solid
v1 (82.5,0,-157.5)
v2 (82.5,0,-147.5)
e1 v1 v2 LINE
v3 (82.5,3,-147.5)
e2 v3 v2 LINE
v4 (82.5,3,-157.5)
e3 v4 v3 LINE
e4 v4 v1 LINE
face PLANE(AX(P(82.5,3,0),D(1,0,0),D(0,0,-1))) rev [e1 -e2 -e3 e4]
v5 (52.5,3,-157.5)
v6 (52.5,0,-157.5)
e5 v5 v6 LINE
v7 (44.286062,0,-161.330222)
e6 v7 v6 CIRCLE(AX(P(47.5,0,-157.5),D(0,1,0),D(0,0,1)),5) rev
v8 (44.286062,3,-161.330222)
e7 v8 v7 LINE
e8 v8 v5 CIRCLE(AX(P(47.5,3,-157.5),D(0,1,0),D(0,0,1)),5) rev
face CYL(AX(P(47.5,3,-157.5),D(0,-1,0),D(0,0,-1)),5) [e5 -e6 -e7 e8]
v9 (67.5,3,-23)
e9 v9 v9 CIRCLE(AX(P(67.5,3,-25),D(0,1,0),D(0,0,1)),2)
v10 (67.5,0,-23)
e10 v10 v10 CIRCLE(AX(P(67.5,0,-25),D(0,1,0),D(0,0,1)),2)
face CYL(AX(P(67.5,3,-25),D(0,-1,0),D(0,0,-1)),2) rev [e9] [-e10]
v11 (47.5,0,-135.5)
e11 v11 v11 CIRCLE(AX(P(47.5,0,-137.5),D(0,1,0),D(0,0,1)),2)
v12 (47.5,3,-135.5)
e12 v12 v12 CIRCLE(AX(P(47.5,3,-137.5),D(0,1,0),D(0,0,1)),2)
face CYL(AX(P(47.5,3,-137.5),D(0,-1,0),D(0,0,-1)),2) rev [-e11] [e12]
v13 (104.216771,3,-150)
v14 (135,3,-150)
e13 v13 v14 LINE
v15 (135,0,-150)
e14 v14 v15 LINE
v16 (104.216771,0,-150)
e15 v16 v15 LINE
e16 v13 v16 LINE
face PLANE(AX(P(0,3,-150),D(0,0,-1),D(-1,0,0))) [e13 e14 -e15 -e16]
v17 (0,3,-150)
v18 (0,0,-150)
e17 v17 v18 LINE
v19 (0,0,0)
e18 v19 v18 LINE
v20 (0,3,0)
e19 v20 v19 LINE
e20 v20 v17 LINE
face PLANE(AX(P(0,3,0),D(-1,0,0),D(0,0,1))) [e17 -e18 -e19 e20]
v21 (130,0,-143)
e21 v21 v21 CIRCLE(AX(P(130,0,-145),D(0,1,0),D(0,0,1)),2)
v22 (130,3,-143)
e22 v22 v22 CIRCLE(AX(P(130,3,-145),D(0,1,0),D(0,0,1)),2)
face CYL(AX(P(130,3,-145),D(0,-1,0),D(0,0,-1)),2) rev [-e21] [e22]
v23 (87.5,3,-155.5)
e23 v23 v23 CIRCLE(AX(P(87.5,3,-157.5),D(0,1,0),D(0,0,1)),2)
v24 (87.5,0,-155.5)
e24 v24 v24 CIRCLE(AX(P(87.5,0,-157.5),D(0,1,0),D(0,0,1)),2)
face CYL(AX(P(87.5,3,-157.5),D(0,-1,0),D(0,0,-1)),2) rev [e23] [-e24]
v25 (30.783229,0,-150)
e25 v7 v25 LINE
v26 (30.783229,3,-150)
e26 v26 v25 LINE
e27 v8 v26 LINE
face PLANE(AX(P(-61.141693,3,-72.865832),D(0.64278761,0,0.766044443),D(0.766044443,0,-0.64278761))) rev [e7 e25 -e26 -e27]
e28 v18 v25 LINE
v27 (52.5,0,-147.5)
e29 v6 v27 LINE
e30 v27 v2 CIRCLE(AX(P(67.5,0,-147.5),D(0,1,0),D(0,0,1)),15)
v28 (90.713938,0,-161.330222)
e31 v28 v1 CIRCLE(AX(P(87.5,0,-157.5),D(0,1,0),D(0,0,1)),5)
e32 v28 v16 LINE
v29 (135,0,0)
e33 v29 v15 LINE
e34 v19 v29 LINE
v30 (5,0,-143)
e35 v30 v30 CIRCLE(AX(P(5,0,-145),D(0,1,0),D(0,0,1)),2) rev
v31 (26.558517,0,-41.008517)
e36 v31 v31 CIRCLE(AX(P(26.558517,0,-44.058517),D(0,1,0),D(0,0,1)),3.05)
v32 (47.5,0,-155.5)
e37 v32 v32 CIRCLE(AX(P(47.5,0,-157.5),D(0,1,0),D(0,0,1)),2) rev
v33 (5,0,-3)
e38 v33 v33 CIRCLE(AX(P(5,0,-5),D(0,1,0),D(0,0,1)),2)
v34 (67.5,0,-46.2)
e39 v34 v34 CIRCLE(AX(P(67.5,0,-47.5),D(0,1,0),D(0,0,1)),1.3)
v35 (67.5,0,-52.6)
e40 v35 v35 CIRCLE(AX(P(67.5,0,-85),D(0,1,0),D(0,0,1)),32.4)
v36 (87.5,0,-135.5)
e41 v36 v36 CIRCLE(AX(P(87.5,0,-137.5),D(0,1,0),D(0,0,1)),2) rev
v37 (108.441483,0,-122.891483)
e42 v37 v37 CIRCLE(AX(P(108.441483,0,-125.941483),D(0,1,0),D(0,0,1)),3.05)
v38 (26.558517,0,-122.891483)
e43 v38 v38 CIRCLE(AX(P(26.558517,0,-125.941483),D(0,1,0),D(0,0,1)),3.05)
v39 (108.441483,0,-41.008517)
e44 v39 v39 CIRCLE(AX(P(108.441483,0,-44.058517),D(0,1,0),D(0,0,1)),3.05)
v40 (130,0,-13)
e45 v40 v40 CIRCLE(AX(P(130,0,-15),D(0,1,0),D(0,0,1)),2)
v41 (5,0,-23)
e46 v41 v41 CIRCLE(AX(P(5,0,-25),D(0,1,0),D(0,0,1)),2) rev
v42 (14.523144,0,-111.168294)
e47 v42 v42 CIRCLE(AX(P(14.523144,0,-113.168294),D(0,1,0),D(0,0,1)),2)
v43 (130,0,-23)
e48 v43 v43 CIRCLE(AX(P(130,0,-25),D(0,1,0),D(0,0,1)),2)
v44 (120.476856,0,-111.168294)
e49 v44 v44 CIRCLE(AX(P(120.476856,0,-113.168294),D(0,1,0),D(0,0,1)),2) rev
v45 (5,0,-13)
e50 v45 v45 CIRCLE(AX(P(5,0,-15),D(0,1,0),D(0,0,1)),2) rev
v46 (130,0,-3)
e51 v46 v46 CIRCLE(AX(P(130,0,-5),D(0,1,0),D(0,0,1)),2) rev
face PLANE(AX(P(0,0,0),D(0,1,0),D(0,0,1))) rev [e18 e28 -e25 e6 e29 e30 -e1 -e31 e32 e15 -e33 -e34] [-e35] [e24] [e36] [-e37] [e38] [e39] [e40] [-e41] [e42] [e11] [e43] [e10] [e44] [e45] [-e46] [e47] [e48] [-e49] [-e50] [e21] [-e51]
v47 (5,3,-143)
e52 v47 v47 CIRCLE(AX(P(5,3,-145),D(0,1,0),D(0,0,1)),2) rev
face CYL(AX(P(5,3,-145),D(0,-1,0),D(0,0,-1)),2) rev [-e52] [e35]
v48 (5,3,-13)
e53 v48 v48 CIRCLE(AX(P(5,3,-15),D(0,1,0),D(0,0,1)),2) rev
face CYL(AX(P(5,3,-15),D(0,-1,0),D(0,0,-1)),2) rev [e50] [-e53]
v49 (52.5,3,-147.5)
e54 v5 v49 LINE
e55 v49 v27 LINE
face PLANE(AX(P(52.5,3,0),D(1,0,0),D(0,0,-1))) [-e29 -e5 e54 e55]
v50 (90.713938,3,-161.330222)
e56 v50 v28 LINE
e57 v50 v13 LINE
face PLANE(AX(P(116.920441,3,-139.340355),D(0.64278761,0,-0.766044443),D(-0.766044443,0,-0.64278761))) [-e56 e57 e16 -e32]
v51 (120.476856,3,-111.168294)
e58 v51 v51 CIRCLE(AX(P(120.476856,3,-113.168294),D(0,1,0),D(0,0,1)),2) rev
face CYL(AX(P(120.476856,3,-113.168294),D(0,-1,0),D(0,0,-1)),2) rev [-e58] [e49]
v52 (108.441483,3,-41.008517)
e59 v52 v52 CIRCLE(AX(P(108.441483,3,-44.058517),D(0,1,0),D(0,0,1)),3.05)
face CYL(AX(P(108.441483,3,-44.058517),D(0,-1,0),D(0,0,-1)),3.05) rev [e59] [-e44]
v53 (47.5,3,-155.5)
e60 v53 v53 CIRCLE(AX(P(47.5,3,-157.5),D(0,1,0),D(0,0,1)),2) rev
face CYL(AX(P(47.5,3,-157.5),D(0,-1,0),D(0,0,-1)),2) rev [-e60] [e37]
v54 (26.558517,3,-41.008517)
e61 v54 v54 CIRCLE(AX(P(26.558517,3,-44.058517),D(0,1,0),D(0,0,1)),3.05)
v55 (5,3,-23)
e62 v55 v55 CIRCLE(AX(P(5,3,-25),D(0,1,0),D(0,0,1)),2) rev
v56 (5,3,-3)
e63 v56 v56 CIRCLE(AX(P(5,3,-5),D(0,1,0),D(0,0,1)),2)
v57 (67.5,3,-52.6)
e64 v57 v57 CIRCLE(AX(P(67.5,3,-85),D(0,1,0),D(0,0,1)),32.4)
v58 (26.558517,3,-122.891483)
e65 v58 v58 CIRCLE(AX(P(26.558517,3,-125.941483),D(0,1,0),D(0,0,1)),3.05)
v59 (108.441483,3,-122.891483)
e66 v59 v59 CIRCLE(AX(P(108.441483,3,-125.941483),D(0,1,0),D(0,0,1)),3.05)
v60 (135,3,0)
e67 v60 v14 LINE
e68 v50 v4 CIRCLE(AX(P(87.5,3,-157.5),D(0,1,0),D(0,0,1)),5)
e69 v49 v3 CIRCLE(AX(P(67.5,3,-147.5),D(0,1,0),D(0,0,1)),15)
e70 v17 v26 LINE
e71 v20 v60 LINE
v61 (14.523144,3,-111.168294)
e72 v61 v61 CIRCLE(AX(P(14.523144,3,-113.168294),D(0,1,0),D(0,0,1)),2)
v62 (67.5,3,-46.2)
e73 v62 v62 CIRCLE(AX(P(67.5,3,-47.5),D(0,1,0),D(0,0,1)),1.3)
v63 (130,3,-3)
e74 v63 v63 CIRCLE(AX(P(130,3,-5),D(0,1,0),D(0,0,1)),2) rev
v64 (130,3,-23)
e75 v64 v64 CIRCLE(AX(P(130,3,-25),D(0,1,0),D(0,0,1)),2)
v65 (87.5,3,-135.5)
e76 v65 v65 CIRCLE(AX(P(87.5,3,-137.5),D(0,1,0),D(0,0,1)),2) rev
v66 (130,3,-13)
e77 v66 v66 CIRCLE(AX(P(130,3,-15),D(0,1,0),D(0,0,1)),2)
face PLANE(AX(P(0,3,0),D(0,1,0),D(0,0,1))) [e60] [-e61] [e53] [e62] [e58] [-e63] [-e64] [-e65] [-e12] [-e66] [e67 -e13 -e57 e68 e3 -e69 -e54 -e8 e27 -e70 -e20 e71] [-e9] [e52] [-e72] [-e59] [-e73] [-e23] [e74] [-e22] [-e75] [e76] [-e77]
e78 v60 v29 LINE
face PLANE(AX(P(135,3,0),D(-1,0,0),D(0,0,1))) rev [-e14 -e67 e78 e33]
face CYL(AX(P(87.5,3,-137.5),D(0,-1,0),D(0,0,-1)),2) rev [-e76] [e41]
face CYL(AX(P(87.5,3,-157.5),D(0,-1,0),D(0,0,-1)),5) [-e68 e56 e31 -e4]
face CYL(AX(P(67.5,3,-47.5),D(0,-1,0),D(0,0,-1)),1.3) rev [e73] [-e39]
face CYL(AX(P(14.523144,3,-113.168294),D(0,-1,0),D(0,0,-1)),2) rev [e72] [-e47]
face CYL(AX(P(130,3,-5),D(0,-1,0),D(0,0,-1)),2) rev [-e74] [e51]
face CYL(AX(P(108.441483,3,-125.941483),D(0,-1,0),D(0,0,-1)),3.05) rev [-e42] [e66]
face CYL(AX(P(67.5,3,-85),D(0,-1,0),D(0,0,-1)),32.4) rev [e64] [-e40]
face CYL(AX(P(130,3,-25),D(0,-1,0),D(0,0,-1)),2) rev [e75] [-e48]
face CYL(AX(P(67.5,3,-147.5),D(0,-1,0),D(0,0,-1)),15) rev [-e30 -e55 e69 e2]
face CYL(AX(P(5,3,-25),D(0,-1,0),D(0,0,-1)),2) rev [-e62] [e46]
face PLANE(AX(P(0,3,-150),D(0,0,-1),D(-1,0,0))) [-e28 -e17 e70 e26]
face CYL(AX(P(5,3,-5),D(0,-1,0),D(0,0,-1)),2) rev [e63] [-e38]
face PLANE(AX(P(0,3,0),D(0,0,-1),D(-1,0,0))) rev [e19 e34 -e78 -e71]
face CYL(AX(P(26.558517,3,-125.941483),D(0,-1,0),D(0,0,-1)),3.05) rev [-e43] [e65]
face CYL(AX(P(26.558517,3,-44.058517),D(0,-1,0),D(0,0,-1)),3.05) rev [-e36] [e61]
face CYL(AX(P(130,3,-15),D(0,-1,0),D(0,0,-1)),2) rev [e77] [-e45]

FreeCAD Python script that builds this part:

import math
import FreeCAD as App
import Part
import Sketcher

V = App.Vector
Q = App.Units.Quantity

doc = App.newDocument("Part")
body = doc.addObject("PartDesign::Body", "Body")

# Sketch on XZ plane
sketch1 = doc.addObject("Sketcher::SketchObject", "Sketch")
body.addObject(sketch1)
sketch1.AttachmentSupport = (doc.XZ_Plane, [""])
sketch1.MapMode = "FlatFace"
sketch1.addGeometry([
    Part.LineSegment(V(0, -150, 0), V(0, 0, 0)),  # 0
    Part.LineSegment(V(0, 0, 0), V(135, 0, 0)),  # 1
    Part.LineSegment(V(135, 0, 0), V(135, -150, 0)),  # 2
    Part.LineSegment(V(135, -150, 0), V(104.216771, -150, 0)),  # 3
    Part.LineSegment(V(104.216771, -150, 0), V(90.713938, -161.330222, 0)),  # 4
    Part.ArcOfCircle(Part.Circle(V(87.5, -157.5, 0), V(0, 0, 1), 5), math.radians(180), math.radians(310)),  # 5
    Part.LineSegment(V(82.5, -157.5, 0), V(82.5, -147.5, 0)),  # 6
    Part.ArcOfCircle(Part.Circle(V(67.5, -147.5, 0), V(0, 0, 1), 15), math.radians(0), math.radians(180)),  # 7
    Part.LineSegment(V(52.5, -147.5, 0), V(52.5, -157.5, 0)),  # 8
    Part.ArcOfCircle(Part.Circle(V(47.5, -157.5, 0), V(0, 0, 1), 5), math.radians(-130), math.radians(0)),  # 9
    Part.LineSegment(V(44.286062, -161.330222, 0), V(30.783229, -150, 0)),  # 10
    Part.LineSegment(V(30.783229, -150, 0), V(0, -150, 0)),  # 11
    Part.Circle(V(5, -5, 0), V(0, 0, 1), 2),  # 12
    Part.Circle(V(5, -15, 0), V(0, 0, 1), 2),  # 13
    Part.Circle(V(5, -25, 0), V(0, 0, 1), 2),  # 14
    Part.Circle(V(26.558517, -44.058517, 0), V(0, 0, 1), 3.05),  # 15
    Part.Circle(V(67.5, -25, 0), V(0, 0, 1), 2),  # 16
    Part.Circle(V(130, -5, 0), V(0, 0, 1), 2),  # 17
    Part.Circle(V(130, -15, 0), V(0, 0, 1), 2),  # 18
    Part.Circle(V(130, -25, 0), V(0, 0, 1), 2),  # 19
    Part.Circle(V(67.5, -47.5, 0), V(0, 0, 1), 1.3),  # 20
    Part.Circle(V(108.441483, -44.058517, 0), V(0, 0, 1), 3.05),  # 21
    Part.Circle(V(14.523144, -113.168294, 0), V(0, 0, 1), 2),  # 22
    Part.Circle(V(26.558517, -125.941483, 0), V(0, 0, 1), 3.05),  # 23
    Part.Circle(V(5, -145, 0), V(0, 0, 1), 2),  # 24
    Part.Circle(V(47.5, -137.5, 0), V(0, 0, 1), 2),  # 25
    Part.Circle(V(47.5, -157.5, 0), V(0, 0, 1), 2),  # 26
    Part.Circle(V(67.5, -85, 0), V(0, 0, 1), 32.4),  # 27
    Part.Circle(V(120.476856, -113.168294, 0), V(0, 0, 1), 2),  # 28
    Part.Circle(V(87.5, -137.5, 0), V(0, 0, 1), 2),  # 29
    Part.Circle(V(87.5, -157.5, 0), V(0, 0, 1), 2),  # 30
    Part.Circle(V(108.441483, -125.941483, 0), V(0, 0, 1), 3.05),  # 31
    Part.Circle(V(130, -145, 0), V(0, 0, 1), 2),  # 32
], False)
sketch1.addConstraint([
    Sketcher.Constraint("Coincident", 0, 2, 1, 1),
    Sketcher.Constraint("Coincident", 1, 2, 2, 1),
    Sketcher.Constraint("Coincident", 2, 2, 3, 1),
    Sketcher.Constraint("Coincident", 3, 2, 4, 1),
    Sketcher.Constraint("Tangent", 4, 2, 5, 2),
    Sketcher.Constraint("Tangent", 5, 1, 6, 1),
    Sketcher.Constraint("Tangent", 6, 2, 7, 1),
    Sketcher.Constraint("Tangent", 7, 2, 8, 1),
    Sketcher.Constraint("Tangent", 8, 2, 9, 2),
    Sketcher.Constraint("Tangent", 9, 1, 10, 1),
    Sketcher.Constraint("Coincident", 10, 2, 11, 1),
    Sketcher.Constraint("Coincident", 11, 2, 0, 1),
    Sketcher.Constraint("Vertical", 0),
    Sketcher.Constraint("Horizontal", 1),
    Sketcher.Constraint("Vertical", 2),
    Sketcher.Constraint("Horizontal", 3),
    Sketcher.Constraint("Vertical", 6),
    Sketcher.Constraint("Vertical", 8),
    Sketcher.Constraint("Horizontal", 11),
    Sketcher.Constraint("Coincident", 0, 2, -1, 1),
    Sketcher.Constraint("Coincident", 26, 3, 9, 3),
    Sketcher.Constraint("Coincident", 30, 3, 5, 3),
    Sketcher.Constraint("Equal", 5, 9),
    Sketcher.Constraint("Equal", 12, 13),
    Sketcher.Constraint("Equal", 13, 14),
    Sketcher.Constraint("Equal", 14, 16),
    Sketcher.Constraint("Equal", 16, 17),
    Sketcher.Constraint("Equal", 17, 18),
    Sketcher.Constraint("Equal", 18, 19),
    Sketcher.Constraint("Equal", 15, 21),
    Sketcher.Constraint("Equal", 19, 22),
    Sketcher.Constraint("Equal", 21, 23),
    Sketcher.Constraint("Equal", 22, 24),
    Sketcher.Constraint("Equal", 24, 25),
    Sketcher.Constraint("Equal", 25, 26),
    Sketcher.Constraint("Equal", 26, 28),
    Sketcher.Constraint("Equal", 28, 29),
    Sketcher.Constraint("Equal", 29, 30),
    Sketcher.Constraint("Equal", 23, 31),
    Sketcher.Constraint("Equal", 30, 32),
    Sketcher.Constraint("Horizontal", 5, 3, 9, 3),
    Sketcher.Constraint("Horizontal", 14, 3, 16, 3),
    Sketcher.Constraint("Horizontal", 12, 3, 17, 3),
    Sketcher.Constraint("Horizontal", 13, 3, 18, 3),
    Sketcher.Constraint("Horizontal", 16, 3, 19, 3),
    Sketcher.Constraint("Horizontal", 15, 3, 21, 3),
    Sketcher.Constraint("Horizontal", 22, 3, 28, 3),
    Sketcher.Constraint("Horizontal", 25, 3, 29, 3),
    Sketcher.Constraint("Horizontal", 23, 3, 31, 3),
    Sketcher.Constraint("Horizontal", 24, 3, 32, 3),
    Sketcher.Constraint("Horizontal", 4, 2, 9, 1),
    Sketcher.Constraint("Horizontal", 3, 2, 10, 2),
    Sketcher.Constraint("Vertical", 12, 3, 13, 3),
    Sketcher.Constraint("Vertical", 13, 3, 14, 3),
    Sketcher.Constraint("Vertical", 7, 3, 16, 3),
    Sketcher.Constraint("Vertical", 17, 3, 18, 3),
    Sketcher.Constraint("Vertical", 18, 3, 19, 3),
    Sketcher.Constraint("Vertical", 16, 3, 20, 3),
    Sketcher.Constraint("Vertical", 15, 3, 23, 3),
    Sketcher.Constraint("Vertical", 14, 3, 24, 3),
    Sketcher.Constraint("Vertical", 9, 3, 25, 3),
    Sketcher.Constraint("Vertical", 20, 3, 27, 3),
    Sketcher.Constraint("Vertical", 5, 3, 29, 3),
    Sketcher.Constraint("Vertical", 21, 3, 31, 3),
    Sketcher.Constraint("Vertical", 19, 3, 32, 3),
    Sketcher.Constraint("Equal", 3, 11),
    Sketcher.Constraint("Diameter", 12, 4.0),
    Sketcher.Constraint("Radius", 5, 5.0),
    Sketcher.Constraint("Radius", 7, 15.0),
    Sketcher.Constraint("Diameter", 15, 6.1),
    Sketcher.Constraint("Diameter", 20, 2.6),
    Sketcher.Constraint("Diameter", 27, 64.8),
    Sketcher.Constraint("DistanceX", 1, 1, 1, 2, 135.0),
    Sketcher.Constraint("DistanceY", 0, 1, 0, 2, 150.0),
    Sketcher.Constraint("DistanceY", 6, 1, 6, 2, 10.0),
    Sketcher.Constraint("Angle", 4, Q("-140 deg")),
    Sketcher.Constraint("DistanceX", -1, 1, 12, 3, 5.0),
    Sketcher.Constraint("DistanceY", 12, 3, -1, 1, 5.0),
    Sketcher.Constraint("DistanceY", 13, 3, -1, 1, 15.0),
    Sketcher.Constraint("DistanceY", 14, 3, -1, 1, 25.0),
    Sketcher.Constraint("DistanceX", -1, 1, 17, 3, 130.0),
    Sketcher.Constraint("DistanceY", 24, 3, -1, 1, 145.0),
    Sketcher.Constraint("DistanceY", 27, 3, -1, 1, 85.0),
    Sketcher.Constraint("DistanceY", 9, 3, 25, 3, 20.0),
    Sketcher.Constraint("DistanceY", 5, 3, -1, 1, 157.5),
    Sketcher.Constraint("DistanceY", 20, 3, -1, 1, 47.5),
    Sketcher.Constraint("DistanceY", 23, 3, 22, 3, 12.773189),
    Sketcher.Constraint("DistanceX", 3, 2, 31, 3, 4.224712),
    Sketcher.Constraint("DistanceX", -1, 1, 15, 3, 26.558517),
    Sketcher.Constraint("DistanceY", 15, 3, -1, 1, 44.058517),
    Sketcher.Constraint("DistanceX", -1, 1, 22, 3, 14.523144),
    Sketcher.Constraint("DistanceY", 22, 3, -1, 1, 113.168294),
    Sketcher.Constraint("DistanceX", -1, 1, 28, 3, 120.476856),
])
pad1 = doc.addObject("PartDesign::Pad", "Pad")
body.addObject(pad1)
pad1.Profile = sketch1
pad1.Length = 3
pad1.Reversed = True

doc.recompute()
